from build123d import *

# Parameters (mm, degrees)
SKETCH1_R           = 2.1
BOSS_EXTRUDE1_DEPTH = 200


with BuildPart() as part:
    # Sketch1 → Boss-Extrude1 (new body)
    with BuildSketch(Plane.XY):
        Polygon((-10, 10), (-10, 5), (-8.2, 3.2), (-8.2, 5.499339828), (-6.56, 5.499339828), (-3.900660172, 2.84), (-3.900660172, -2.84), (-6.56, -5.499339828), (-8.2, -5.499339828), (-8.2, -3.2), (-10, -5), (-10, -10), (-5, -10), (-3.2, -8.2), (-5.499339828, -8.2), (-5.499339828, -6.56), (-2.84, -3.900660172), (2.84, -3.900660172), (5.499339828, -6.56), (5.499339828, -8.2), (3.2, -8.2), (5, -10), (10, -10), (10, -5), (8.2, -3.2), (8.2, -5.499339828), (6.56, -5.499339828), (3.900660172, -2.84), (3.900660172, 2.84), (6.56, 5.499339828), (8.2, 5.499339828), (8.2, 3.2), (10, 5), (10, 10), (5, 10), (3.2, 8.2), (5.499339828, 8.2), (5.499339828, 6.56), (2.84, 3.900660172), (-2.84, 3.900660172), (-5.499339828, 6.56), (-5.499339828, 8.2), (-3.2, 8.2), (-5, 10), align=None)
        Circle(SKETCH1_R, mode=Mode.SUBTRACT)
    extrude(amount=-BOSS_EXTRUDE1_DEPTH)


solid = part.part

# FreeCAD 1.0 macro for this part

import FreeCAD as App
import Part
import Sketcher
from FreeCAD import Vector
Q = App.Units.Quantity

doc = App.newDocument("Part")
params = doc.addObject("Spreadsheet::Sheet", "Params")
for row, (alias, value) in enumerate([
    ("sketch1_diameter", "4.2 mm"),
    ("sketch1_width", "5 mm"),
    ("sketch1_width2", "1.64 mm"),
    ("sketch1_width3", "5.68 mm"),
    ("pad1_length", "200 mm"),
], start=1):
    params.set(f"A{row}", alias)
    params.set(f"B{row}", "=" + value)
    params.setAlias(f"B{row}", alias)

body = doc.addObject("PartDesign::Body", "Body")

sketch1 = body.newObject("Sketcher::SketchObject", "Sketch")
sketch1.AttachmentSupport = (doc.getObject("XY_Plane"), [""])
sketch1.MapMode = "FlatFace"
sketch1.addGeometry([
    Part.LineSegment(Vector(-10, 10, 0), Vector(-10, 5, 0)),
    Part.LineSegment(Vector(-10, 5, 0), Vector(-8.2, 3.2, 0)),
    Part.LineSegment(Vector(-8.2, 3.2, 0), Vector(-8.2, 5.5, 0)),
    Part.LineSegment(Vector(-8.2, 5.5, 0), Vector(-6.6, 5.5, 0)),
    Part.LineSegment(Vector(-6.6, 5.5, 0), Vector(-3.9, 2.8, 0)),
    Part.LineSegment(Vector(-3.9, 2.8, 0), Vector(-3.9, -2.8, 0)),
    Part.LineSegment(Vector(-3.9, -2.8, 0), Vector(-6.6, -5.5, 0)),
    Part.LineSegment(Vector(-6.6, -5.5, 0), Vector(-8.2, -5.5, 0)),
    Part.LineSegment(Vector(-8.2, -5.5, 0), Vector(-8.2, -3.2, 0)),
    Part.LineSegment(Vector(-8.2, -3.2, 0), Vector(-10, -5, 0)),
    Part.LineSegment(Vector(-10, -5, 0), Vector(-10, -10, 0)),
    Part.LineSegment(Vector(-10, -10, 0), Vector(-5, -10, 0)),
    Part.LineSegment(Vector(-5, -10, 0), Vector(-3.2, -8.2, 0)),
    Part.LineSegment(Vector(-3.2, -8.2, 0), Vector(-5.5, -8.2, 0)),
    Part.LineSegment(Vector(-5.5, -8.2, 0), Vector(-5.5, -6.6, 0)),
    Part.LineSegment(Vector(-5.5, -6.6, 0), Vector(-2.8, -3.9, 0)),
    Part.LineSegment(Vector(-2.8, -3.9, 0), Vector(2.8, -3.9, 0)),
    Part.LineSegment(Vector(2.8, -3.9, 0), Vector(5.5, -6.6, 0)),
    Part.LineSegment(Vector(5.5, -6.6, 0), Vector(5.5, -8.2, 0)),
    Part.LineSegment(Vector(5.5, -8.2, 0), Vector(3.2, -8.2, 0)),
    Part.LineSegment(Vector(3.2, -8.2, 0), Vector(5, -10, 0)),
    Part.LineSegment(Vector(5, -10, 0), Vector(10, -10, 0)),
    Part.LineSegment(Vector(10, -10, 0), Vector(10, -5, 0)),
    Part.LineSegment(Vector(10, -5, 0), Vector(8.2, -3.2, 0)),
    Part.LineSegment(Vector(8.2, -3.2, 0), Vector(8.2, -5.5, 0)),
    Part.LineSegment(Vector(8.2, -5.5, 0), Vector(6.6, -5.5, 0)),
    Part.LineSegment(Vector(6.6, -5.5, 0), Vector(3.9, -2.8, 0)),
    Part.LineSegment(Vector(3.9, -2.8, 0), Vector(3.9, 2.8, 0)),
    Part.LineSegment(Vector(3.9, 2.8, 0), Vector(6.6, 5.5, 0)),
    Part.LineSegment(Vector(6.6, 5.5, 0), Vector(8.2, 5.5, 0)),
    Part.LineSegment(Vector(8.2, 5.5, 0), Vector(8.2, 3.2, 0)),
    Part.LineSegment(Vector(8.2, 3.2, 0), Vector(10, 5, 0)),
    Part.LineSegment(Vector(10, 5, 0), Vector(10, 10, 0)),
    Part.LineSegment(Vector(10, 10, 0), Vector(5, 10, 0)),
    Part.LineSegment(Vector(5, 10, 0), Vector(3.2, 8.2, 0)),
    Part.LineSegment(Vector(3.2, 8.2, 0), Vector(5.5, 8.2, 0)),
    Part.LineSegment(Vector(5.5, 8.2, 0), Vector(5.5, 6.6, 0)),
    Part.LineSegment(Vector(5.5, 6.6, 0), Vector(2.8, 3.9, 0)),
    Part.LineSegment(Vector(2.8, 3.9, 0), Vector(-2.8, 3.9, 0)),
    Part.LineSegment(Vector(-2.8, 3.9, 0), Vector(-5.5, 6.6, 0)),
    Part.LineSegment(Vector(-5.5, 6.6, 0), Vector(-5.5, 8.2, 0)),
    Part.LineSegment(Vector(-5.5, 8.2, 0), Vector(-3.2, 8.2, 0)),
    Part.LineSegment(Vector(-3.2, 8.2, 0), Vector(-5, 10, 0)),
    Part.LineSegment(Vector(-5, 10, 0), Vector(-10, 10, 0)),
    Part.Circle(Vector(0, 0, 0), Vector(0, 0, 1), 2.1),
], False)
sketch1.addConstraint([
    Sketcher.Constraint("Coincident", 0, 2, 1, 1),
    Sketcher.Constraint("Coincident", 1, 2, 2, 1),
    Sketcher.Constraint("Coincident", 2, 2, 3, 1),
    Sketcher.Constraint("Coincident", 3, 2, 4, 1),
    Sketcher.Constraint("Coincident", 4, 2, 5, 1),
    Sketcher.Constraint("Coincident", 5, 2, 6, 1),
    Sketcher.Constraint("Coincident", 6, 2, 7, 1),
    Sketcher.Constraint("Coincident", 7, 2, 8, 1),
    Sketcher.Constraint("Coincident", 8, 2, 9, 1),
    Sketcher.Constraint("Coincident", 9, 2, 10, 1),
    Sketcher.Constraint("Coincident", 10, 2, 11, 1),
    Sketcher.Constraint("Coincident", 11, 2, 12, 1),
    Sketcher.Constraint("Coincident", 12, 2, 13, 1),
    Sketcher.Constraint("Coincident", 13, 2, 14, 1),
    Sketcher.Constraint("Coincident", 14, 2, 15, 1),
    Sketcher.Constraint("Coincident", 15, 2, 16, 1),
    Sketcher.Constraint("Coincident", 16, 2, 17, 1),
    Sketcher.Constraint("Coincident", 17, 2, 18, 1),
    Sketcher.Constraint("Coincident", 18, 2, 19, 1),
    Sketcher.Constraint("Coincident", 19, 2, 20, 1),
    Sketcher.Constraint("Coincident", 20, 2, 21, 1),
    Sketcher.Constraint("Coincident", 21, 2, 22, 1),
    Sketcher.Constraint("Coincident", 22, 2, 23, 1),
    Sketcher.Constraint("Coincident", 23, 2, 24, 1),
    Sketcher.Constraint("Coincident", 24, 2, 25, 1),
    Sketcher.Constraint("Coincident", 25, 2, 26, 1),
    Sketcher.Constraint("Coincident", 26, 2, 27, 1),
    Sketcher.Constraint("Coincident", 27, 2, 28, 1),
    Sketcher.Constraint("Coincident", 28, 2, 29, 1),
    Sketcher.Constraint("Coincident", 29, 2, 30, 1),
    Sketcher.Constraint("Coincident", 30, 2, 31, 1),
    Sketcher.Constraint("Coincident", 31, 2, 32, 1),
    Sketcher.Constraint("Coincident", 32, 2, 33, 1),
    Sketcher.Constraint("Coincident", 33, 2, 34, 1),
    Sketcher.Constraint("Coincident", 34, 2, 35, 1),
    Sketcher.Constraint("Coincident", 35, 2, 36, 1),
    Sketcher.Constraint("Coincident", 36, 2, 37, 1),
    Sketcher.Constraint("Coincident", 37, 2, 38, 1),
    Sketcher.Constraint("Coincident", 38, 2, 39, 1),
    Sketcher.Constraint("Coincident", 39, 2, 40, 1),
    Sketcher.Constraint("Coincident", 40, 2, 41, 1),
    Sketcher.Constraint("Coincident", 41, 2, 42, 1),
    Sketcher.Constraint("Coincident", 42, 2, 43, 1),
    Sketcher.Constraint("Coincident", 43, 2, 0, 1),
    Sketcher.Constraint("Vertical", 0),
    Sketcher.Constraint("Vertical", 2),
    Sketcher.Constraint("Horizontal", 3),
    Sketcher.Constraint("Vertical", 5),
    Sketcher.Constraint("Horizontal", 7),
    Sketcher.Constraint("Vertical", 8),
    Sketcher.Constraint("Vertical", 10),
    Sketcher.Constraint("Horizontal", 11),
    Sketcher.Constraint("Horizontal", 13),
    Sketcher.Constraint("Vertical", 14),
    Sketcher.Constraint("Horizontal", 16),
    Sketcher.Constraint("Vertical", 18),
    Sketcher.Constraint("Horizontal", 19),
    Sketcher.Constraint("Horizontal", 21),
    Sketcher.Constraint("Vertical", 22),
    Sketcher.Constraint("Vertical", 24),
    Sketcher.Constraint("Horizontal", 25),
    Sketcher.Constraint("Vertical", 27),
    Sketcher.Constraint("Horizontal", 29),
    Sketcher.Constraint("Vertical", 30),
    Sketcher.Constraint("Vertical", 32),
    Sketcher.Constraint("Horizontal", 33),
    Sketcher.Constraint("Horizontal", 35),
    Sketcher.Constraint("Vertical", 36),
    Sketcher.Constraint("Horizontal", 38),
    Sketcher.Constraint("Vertical", 40),
    Sketcher.Constraint("Horizontal", 41),
    Sketcher.Constraint("Horizontal", 43),
    Sketcher.Constraint("Coincident", 44, 3, -1, 1),
    Sketcher.Constraint("Symmetric", 0, 2, 22, 2, -1, 1),
    Sketcher.Constraint("Symmetric", 1, 2, 23, 2, -1, 1),
    Sketcher.Constraint("Symmetric", 3, 2, 25, 2, -1, 1),
    Sketcher.Constraint("Symmetric", 4, 2, 26, 2, -1, 1),
    Sketcher.Constraint("Symmetric", 6, 2, 28, 2, -1, 1),
    Sketcher.Constraint("Symmetric", 8, 2, 30, 2, -1, 1),
    Sketcher.Constraint("Symmetric", 9, 2, 31, 2, -1, 1),
    Sketcher.Constraint("Symmetric", 11, 2, 33, 2, -1, 1),
    Sketcher.Constraint("Symmetric", 12, 2, 34, 2, -1, 1),
    Sketcher.Constraint("Symmetric", 14, 2, 36, 2, -1, 1),
    Sketcher.Constraint("Symmetric", 15, 2, 37, 2, -1, 1),
    Sketcher.Constraint("Symmetric", 17, 2, 39, 2, -1, 1),
    Sketcher.Constraint("Symmetric", 19, 2, 41, 2, -1, 1),
    Sketcher.Constraint("Symmetric", 20, 2, 42, 2, -1, 1),
    Sketcher.Constraint("Symmetric", 14, 2, 17, 2, -2),
    Sketcher.Constraint("Symmetric", 12, 2, 19, 2, -2),
    Sketcher.Constraint("Symmetric", 11, 2, 20, 2, -2),
    Sketcher.Constraint("Symmetric", 9, 2, 22, 2, -2),
    Sketcher.Constraint("Symmetric", 8, 2, 23, 2, -2),
    Sketcher.Constraint("Symmetric", 6, 2, 25, 2, -2),
    Sketcher.Constraint("Parallel", 1, 4),
    Sketcher.Constraint("Perpendicular", 4, 6),
    Sketcher.Constraint("Parallel", 6, 9),
    Sketcher.Constraint("Parallel", 9, 12),
    Sketcher.Constraint("Parallel", 12, 15),
    Sketcher.Constraint("Perpendicular", 15, 17),
    Sketcher.Constraint("Perpendicular", 26, 28),
    Sketcher.Constraint("Perpendicular", 37, 39),
    Sketcher.Constraint("Equal", 43, 0),
    Sketcher.Constraint("Equal", 41, 2),
    Sketcher.Constraint("Equal", 38, 5),
    Sketcher.Constraint("Equal", 29, 14),
    Sketcher.Constraint("Equal", 9, 12),
    Sketcher.Constraint("Equal", 6, 15),
    Sketcher.Constraint("Diameter", 44, Q("4.2 mm")),
    Sketcher.Constraint("DistanceX", 11, 1, 11, 2, Q("5 mm")),
    Sketcher.Constraint("DistanceX", 0, 2, -1, 1, Q("10 mm")),
    Sketcher.Constraint("DistanceX", 3, 1, 3, 2, Q("1.64 mm")),
    Sketcher.Constraint("DistanceX", 16, 1, 16, 2, Q("5.68 mm")),
    Sketcher.Constraint("DistanceX", 1, 2, -1, 1, Q("8.2 mm")),
    Sketcher.Constraint("DistanceX", 13, 2, 13, 1, Q("2.29934 mm")),
])
sketch1.setExpression("Constraints[107]", "Params.sketch1_diameter")
sketch1.setExpression("Constraints[108]", "Params.sketch1_width")
sketch1.setExpression("Constraints[110]", "Params.sketch1_width2")
sketch1.setExpression("Constraints[111]", "Params.sketch1_width3")
pad1 = body.newObject("PartDesign::Pad", "Pad")
pad1.Profile = sketch1
pad1.setExpression("Length", "Params.pad1_length")
pad1.Reversed = True

doc.recompute()
